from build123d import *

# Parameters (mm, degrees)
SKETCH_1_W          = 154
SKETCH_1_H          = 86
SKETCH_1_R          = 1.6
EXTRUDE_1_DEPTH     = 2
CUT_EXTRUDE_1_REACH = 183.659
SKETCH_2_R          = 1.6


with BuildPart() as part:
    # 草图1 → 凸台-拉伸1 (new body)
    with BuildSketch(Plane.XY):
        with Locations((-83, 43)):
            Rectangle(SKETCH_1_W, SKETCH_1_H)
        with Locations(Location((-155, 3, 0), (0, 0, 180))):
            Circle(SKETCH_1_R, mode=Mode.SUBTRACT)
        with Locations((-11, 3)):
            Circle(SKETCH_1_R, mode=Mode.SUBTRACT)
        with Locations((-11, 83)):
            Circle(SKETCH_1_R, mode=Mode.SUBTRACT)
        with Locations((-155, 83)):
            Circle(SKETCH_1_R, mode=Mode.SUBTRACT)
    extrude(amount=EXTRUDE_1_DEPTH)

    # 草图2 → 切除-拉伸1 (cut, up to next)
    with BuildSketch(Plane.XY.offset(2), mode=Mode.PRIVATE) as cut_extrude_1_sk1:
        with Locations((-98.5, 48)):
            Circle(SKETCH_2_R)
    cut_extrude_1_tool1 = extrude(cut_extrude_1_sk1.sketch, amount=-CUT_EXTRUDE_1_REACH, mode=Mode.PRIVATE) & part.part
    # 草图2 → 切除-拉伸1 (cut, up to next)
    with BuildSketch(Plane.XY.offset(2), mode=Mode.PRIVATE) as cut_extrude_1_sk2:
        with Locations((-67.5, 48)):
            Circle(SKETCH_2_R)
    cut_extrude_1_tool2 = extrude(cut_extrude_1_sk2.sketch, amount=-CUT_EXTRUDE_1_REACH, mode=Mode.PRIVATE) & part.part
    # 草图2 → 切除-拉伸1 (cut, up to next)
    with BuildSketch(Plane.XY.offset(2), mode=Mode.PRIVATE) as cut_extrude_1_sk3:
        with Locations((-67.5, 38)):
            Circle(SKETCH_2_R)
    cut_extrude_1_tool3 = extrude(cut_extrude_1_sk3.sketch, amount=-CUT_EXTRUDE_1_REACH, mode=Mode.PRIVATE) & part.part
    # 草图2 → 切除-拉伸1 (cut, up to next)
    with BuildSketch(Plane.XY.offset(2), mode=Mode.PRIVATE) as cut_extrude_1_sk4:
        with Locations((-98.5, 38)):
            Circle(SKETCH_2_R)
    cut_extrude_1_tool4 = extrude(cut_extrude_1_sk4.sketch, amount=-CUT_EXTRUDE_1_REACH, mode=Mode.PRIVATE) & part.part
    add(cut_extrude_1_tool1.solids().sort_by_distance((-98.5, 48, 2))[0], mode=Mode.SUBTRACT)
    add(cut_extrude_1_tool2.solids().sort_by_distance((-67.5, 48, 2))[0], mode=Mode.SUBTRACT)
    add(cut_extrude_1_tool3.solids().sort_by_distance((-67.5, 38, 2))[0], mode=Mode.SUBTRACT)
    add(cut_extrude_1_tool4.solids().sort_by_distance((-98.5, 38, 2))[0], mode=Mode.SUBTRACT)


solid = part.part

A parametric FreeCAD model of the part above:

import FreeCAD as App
import Part
import Sketcher
from FreeCAD import Vector
Q = App.Units.Quantity


def add_polygon(sketch, points):
    """Adds a closed chain of lines whose ends are joined by coincident constraints."""
    first, n = sketch.GeometryCount, len(points)
    for a, b in zip(points, points[1:] + points[:1]):
        sketch.addGeometry(Part.LineSegment(App.Vector(*a, 0), App.Vector(*b, 0)), False)
    for i in range(n):
        sketch.addConstraint(Sketcher.Constraint("Coincident", first + i, 2, first + (i + 1) % n, 1))

doc = App.newDocument("Part")
body = doc.addObject("PartDesign::Body", "Body")

# Sketch on XY plane
sketch1 = body.newObject("Sketcher::SketchObject", "Sketch")
sketch1.AttachmentSupport = (doc.getObject("XY_Plane"), [""])
sketch1.MapMode = "FlatFace"
add_polygon(sketch1, [(-160, 86), (-160, 0), (-6, 0), (-6, 86)])  # lines 0-3
sketch1.addGeometry(Part.Circle(Vector(-155, 3, 0), Vector(0, 0, 1), 1.6), False)  # 4
sketch1.addGeometry(Part.Circle(Vector(-11, 3, 0), Vector(0, 0, 1), 1.6), False)  # 5
sketch1.addGeometry(Part.Circle(Vector(-155, 83, 0), Vector(0, 0, 1), 1.6), False)  # 6
sketch1.addGeometry(Part.Circle(Vector(-11, 83, 0), Vector(0, 0, 1), 1.6), False)  # 7
sketch1.addConstraint(Sketcher.Constraint("Vertical", 0))
sketch1.addConstraint(Sketcher.Constraint("Horizontal", 1))
sketch1.addConstraint(Sketcher.Constraint("Vertical", 2))
sketch1.addConstraint(Sketcher.Constraint("Horizontal", 3))
sketch1.addConstraint(Sketcher.Constraint("Equal", 4, 5))
sketch1.addConstraint(Sketcher.Constraint("Equal", 5, 6))
sketch1.addConstraint(Sketcher.Constraint("Equal", 6, 7))
sketch1.addConstraint(Sketcher.Constraint("PointOnObject", 0, 2, -1))
sketch1.addConstraint(Sketcher.Constraint("Horizontal", 4, 3, 5, 3))
sketch1.addConstraint(Sketcher.Constraint("Horizontal", 6, 3, 7, 3))
sketch1.addConstraint(Sketcher.Constraint("Vertical", 4, 3, 6, 3))
sketch1.addConstraint(Sketcher.Constraint("Vertical", 5, 3, 7, 3))
sketch1.addConstraint(Sketcher.Constraint("Diameter", 4, Q("3.2 mm")))
sketch1.addConstraint(Sketcher.Constraint("DistanceX", 1, 1, 1, 2, Q("154 mm")))
sketch1.addConstraint(Sketcher.Constraint("DistanceY", 0, 2, 0, 1, Q("86 mm")))
sketch1.addConstraint(Sketcher.Constraint("DistanceX", 4, 3, -1, 1, Q("155 mm")))
sketch1.addConstraint(Sketcher.Constraint("DistanceY", -1, 1, 4, 3, Q("3 mm")))
sketch1.addConstraint(Sketcher.Constraint("DistanceX", 5, 3, -1, 1, Q("11 mm")))
sketch1.addConstraint(Sketcher.Constraint("DistanceY", -1, 1, 6, 3, Q("83 mm")))
sketch1.addConstraint(Sketcher.Constraint("DistanceX", 0, 2, -1, 1, Q("160 mm")))
pad1 = body.newObject("PartDesign::Pad", "Pad")
pad1.Profile = sketch1
pad1.Length = 2

# Sketch on XY plane
sketch2 = body.newObject("Sketcher::SketchObject", "Sketch001")
sketch2.AttachmentSupport = (doc.getObject("XY_Plane"), [""])
sketch2.MapMode = "FlatFace"
sketch2.AttachmentOffset = App.Placement(Vector(0, 0, 2), App.Rotation())
sketch2.addGeometry(Part.Circle(Vector(-98.5, 48, 0), Vector(0, 0, 1), 1.6), False)
sketch2.addConstraint(Sketcher.Constraint("Diameter", 0, Q("3.2 mm")))
sketch2.addConstraint(Sketcher.Constraint("DistanceY", -1, 1, 0, 3, Q("48 mm")))
sketch2.addConstraint(Sketcher.Constraint("DistanceX", 0, 3, -1, 1, Q("98.5 mm")))
pocket1 = body.newObject("PartDesign::Pocket", "Pocket")
pocket1.Profile = sketch2
pocket1.Type = "UpToFirst"

# Sketch on XY plane
sketch3 = body.newObject("Sketcher::SketchObject", "Sketch002")
sketch3.AttachmentSupport = (doc.getObject("XY_Plane"), [""])
sketch3.MapMode = "FlatFace"
sketch3.AttachmentOffset = App.Placement(Vector(0, 0, 2), App.Rotation())
sketch3.addGeometry(Part.Circle(Vector(-67.5, 48, 0), Vector(0, 0, 1), 1.6), False)
sketch3.addConstraint(Sketcher.Constraint("Diameter", 0, Q("3.2 mm")))
sketch3.addConstraint(Sketcher.Constraint("DistanceY", -1, 1, 0, 3, Q("48 mm")))
sketch3.addConstraint(Sketcher.Constraint("DistanceX", 0, 3, -1, 1, Q("67.5 mm")))
pocket2 = body.newObject("PartDesign::Pocket", "Pocket001")
pocket2.Profile = sketch3
pocket2.Type = "UpToFirst"

# Sketch on XY plane
sketch4 = body.newObject("Sketcher::SketchObject", "Sketch003")
sketch4.AttachmentSupport = (doc.getObject("XY_Plane"), [""])
sketch4.MapMode = "FlatFace"
sketch4.AttachmentOffset = App.Placement(Vector(0, 0, 2), App.Rotation())
sketch4.addGeometry(Part.Circle(Vector(-67.5, 38, 0), Vector(0, 0, 1), 1.6), False)
sketch4.addConstraint(Sketcher.Constraint("Diameter", 0, Q("3.2 mm")))
sketch4.addConstraint(Sketcher.Constraint("DistanceY", -1, 1, 0, 3, Q("38 mm")))
sketch4.addConstraint(Sketcher.Constraint("DistanceX", 0, 3, -1, 1, Q("67.5 mm")))
pocket3 = body.newObject("PartDesign::Pocket", "Pocket002")
pocket3.Profile = sketch4
pocket3.Type = "UpToFirst"

# Sketch on XY plane
sketch5 = body.newObject("Sketcher::SketchObject", "Sketch004")
sketch5.AttachmentSupport = (doc.getObject("XY_Plane"), [""])
sketch5.MapMode = "FlatFace"
sketch5.AttachmentOffset = App.Placement(Vector(0, 0, 2), App.Rotation())
sketch5.addGeometry(Part.Circle(Vector(-98.5, 38, 0), Vector(0, 0, 1), 1.6), False)
sketch5.addConstraint(Sketcher.Constraint("Diameter", 0, Q("3.2 mm")))
sketch5.addConstraint(Sketcher.Constraint("DistanceY", -1, 1, 0, 3, Q("38 mm")))
sketch5.addConstraint(Sketcher.Constraint("DistanceX", 0, 3, -1, 1, Q("98.5 mm")))
pocket4 = body.newObject("PartDesign::Pocket", "Pocket003")
pocket4.Profile = sketch5
pocket4.Type = "UpToFirst"

doc.recompute()
